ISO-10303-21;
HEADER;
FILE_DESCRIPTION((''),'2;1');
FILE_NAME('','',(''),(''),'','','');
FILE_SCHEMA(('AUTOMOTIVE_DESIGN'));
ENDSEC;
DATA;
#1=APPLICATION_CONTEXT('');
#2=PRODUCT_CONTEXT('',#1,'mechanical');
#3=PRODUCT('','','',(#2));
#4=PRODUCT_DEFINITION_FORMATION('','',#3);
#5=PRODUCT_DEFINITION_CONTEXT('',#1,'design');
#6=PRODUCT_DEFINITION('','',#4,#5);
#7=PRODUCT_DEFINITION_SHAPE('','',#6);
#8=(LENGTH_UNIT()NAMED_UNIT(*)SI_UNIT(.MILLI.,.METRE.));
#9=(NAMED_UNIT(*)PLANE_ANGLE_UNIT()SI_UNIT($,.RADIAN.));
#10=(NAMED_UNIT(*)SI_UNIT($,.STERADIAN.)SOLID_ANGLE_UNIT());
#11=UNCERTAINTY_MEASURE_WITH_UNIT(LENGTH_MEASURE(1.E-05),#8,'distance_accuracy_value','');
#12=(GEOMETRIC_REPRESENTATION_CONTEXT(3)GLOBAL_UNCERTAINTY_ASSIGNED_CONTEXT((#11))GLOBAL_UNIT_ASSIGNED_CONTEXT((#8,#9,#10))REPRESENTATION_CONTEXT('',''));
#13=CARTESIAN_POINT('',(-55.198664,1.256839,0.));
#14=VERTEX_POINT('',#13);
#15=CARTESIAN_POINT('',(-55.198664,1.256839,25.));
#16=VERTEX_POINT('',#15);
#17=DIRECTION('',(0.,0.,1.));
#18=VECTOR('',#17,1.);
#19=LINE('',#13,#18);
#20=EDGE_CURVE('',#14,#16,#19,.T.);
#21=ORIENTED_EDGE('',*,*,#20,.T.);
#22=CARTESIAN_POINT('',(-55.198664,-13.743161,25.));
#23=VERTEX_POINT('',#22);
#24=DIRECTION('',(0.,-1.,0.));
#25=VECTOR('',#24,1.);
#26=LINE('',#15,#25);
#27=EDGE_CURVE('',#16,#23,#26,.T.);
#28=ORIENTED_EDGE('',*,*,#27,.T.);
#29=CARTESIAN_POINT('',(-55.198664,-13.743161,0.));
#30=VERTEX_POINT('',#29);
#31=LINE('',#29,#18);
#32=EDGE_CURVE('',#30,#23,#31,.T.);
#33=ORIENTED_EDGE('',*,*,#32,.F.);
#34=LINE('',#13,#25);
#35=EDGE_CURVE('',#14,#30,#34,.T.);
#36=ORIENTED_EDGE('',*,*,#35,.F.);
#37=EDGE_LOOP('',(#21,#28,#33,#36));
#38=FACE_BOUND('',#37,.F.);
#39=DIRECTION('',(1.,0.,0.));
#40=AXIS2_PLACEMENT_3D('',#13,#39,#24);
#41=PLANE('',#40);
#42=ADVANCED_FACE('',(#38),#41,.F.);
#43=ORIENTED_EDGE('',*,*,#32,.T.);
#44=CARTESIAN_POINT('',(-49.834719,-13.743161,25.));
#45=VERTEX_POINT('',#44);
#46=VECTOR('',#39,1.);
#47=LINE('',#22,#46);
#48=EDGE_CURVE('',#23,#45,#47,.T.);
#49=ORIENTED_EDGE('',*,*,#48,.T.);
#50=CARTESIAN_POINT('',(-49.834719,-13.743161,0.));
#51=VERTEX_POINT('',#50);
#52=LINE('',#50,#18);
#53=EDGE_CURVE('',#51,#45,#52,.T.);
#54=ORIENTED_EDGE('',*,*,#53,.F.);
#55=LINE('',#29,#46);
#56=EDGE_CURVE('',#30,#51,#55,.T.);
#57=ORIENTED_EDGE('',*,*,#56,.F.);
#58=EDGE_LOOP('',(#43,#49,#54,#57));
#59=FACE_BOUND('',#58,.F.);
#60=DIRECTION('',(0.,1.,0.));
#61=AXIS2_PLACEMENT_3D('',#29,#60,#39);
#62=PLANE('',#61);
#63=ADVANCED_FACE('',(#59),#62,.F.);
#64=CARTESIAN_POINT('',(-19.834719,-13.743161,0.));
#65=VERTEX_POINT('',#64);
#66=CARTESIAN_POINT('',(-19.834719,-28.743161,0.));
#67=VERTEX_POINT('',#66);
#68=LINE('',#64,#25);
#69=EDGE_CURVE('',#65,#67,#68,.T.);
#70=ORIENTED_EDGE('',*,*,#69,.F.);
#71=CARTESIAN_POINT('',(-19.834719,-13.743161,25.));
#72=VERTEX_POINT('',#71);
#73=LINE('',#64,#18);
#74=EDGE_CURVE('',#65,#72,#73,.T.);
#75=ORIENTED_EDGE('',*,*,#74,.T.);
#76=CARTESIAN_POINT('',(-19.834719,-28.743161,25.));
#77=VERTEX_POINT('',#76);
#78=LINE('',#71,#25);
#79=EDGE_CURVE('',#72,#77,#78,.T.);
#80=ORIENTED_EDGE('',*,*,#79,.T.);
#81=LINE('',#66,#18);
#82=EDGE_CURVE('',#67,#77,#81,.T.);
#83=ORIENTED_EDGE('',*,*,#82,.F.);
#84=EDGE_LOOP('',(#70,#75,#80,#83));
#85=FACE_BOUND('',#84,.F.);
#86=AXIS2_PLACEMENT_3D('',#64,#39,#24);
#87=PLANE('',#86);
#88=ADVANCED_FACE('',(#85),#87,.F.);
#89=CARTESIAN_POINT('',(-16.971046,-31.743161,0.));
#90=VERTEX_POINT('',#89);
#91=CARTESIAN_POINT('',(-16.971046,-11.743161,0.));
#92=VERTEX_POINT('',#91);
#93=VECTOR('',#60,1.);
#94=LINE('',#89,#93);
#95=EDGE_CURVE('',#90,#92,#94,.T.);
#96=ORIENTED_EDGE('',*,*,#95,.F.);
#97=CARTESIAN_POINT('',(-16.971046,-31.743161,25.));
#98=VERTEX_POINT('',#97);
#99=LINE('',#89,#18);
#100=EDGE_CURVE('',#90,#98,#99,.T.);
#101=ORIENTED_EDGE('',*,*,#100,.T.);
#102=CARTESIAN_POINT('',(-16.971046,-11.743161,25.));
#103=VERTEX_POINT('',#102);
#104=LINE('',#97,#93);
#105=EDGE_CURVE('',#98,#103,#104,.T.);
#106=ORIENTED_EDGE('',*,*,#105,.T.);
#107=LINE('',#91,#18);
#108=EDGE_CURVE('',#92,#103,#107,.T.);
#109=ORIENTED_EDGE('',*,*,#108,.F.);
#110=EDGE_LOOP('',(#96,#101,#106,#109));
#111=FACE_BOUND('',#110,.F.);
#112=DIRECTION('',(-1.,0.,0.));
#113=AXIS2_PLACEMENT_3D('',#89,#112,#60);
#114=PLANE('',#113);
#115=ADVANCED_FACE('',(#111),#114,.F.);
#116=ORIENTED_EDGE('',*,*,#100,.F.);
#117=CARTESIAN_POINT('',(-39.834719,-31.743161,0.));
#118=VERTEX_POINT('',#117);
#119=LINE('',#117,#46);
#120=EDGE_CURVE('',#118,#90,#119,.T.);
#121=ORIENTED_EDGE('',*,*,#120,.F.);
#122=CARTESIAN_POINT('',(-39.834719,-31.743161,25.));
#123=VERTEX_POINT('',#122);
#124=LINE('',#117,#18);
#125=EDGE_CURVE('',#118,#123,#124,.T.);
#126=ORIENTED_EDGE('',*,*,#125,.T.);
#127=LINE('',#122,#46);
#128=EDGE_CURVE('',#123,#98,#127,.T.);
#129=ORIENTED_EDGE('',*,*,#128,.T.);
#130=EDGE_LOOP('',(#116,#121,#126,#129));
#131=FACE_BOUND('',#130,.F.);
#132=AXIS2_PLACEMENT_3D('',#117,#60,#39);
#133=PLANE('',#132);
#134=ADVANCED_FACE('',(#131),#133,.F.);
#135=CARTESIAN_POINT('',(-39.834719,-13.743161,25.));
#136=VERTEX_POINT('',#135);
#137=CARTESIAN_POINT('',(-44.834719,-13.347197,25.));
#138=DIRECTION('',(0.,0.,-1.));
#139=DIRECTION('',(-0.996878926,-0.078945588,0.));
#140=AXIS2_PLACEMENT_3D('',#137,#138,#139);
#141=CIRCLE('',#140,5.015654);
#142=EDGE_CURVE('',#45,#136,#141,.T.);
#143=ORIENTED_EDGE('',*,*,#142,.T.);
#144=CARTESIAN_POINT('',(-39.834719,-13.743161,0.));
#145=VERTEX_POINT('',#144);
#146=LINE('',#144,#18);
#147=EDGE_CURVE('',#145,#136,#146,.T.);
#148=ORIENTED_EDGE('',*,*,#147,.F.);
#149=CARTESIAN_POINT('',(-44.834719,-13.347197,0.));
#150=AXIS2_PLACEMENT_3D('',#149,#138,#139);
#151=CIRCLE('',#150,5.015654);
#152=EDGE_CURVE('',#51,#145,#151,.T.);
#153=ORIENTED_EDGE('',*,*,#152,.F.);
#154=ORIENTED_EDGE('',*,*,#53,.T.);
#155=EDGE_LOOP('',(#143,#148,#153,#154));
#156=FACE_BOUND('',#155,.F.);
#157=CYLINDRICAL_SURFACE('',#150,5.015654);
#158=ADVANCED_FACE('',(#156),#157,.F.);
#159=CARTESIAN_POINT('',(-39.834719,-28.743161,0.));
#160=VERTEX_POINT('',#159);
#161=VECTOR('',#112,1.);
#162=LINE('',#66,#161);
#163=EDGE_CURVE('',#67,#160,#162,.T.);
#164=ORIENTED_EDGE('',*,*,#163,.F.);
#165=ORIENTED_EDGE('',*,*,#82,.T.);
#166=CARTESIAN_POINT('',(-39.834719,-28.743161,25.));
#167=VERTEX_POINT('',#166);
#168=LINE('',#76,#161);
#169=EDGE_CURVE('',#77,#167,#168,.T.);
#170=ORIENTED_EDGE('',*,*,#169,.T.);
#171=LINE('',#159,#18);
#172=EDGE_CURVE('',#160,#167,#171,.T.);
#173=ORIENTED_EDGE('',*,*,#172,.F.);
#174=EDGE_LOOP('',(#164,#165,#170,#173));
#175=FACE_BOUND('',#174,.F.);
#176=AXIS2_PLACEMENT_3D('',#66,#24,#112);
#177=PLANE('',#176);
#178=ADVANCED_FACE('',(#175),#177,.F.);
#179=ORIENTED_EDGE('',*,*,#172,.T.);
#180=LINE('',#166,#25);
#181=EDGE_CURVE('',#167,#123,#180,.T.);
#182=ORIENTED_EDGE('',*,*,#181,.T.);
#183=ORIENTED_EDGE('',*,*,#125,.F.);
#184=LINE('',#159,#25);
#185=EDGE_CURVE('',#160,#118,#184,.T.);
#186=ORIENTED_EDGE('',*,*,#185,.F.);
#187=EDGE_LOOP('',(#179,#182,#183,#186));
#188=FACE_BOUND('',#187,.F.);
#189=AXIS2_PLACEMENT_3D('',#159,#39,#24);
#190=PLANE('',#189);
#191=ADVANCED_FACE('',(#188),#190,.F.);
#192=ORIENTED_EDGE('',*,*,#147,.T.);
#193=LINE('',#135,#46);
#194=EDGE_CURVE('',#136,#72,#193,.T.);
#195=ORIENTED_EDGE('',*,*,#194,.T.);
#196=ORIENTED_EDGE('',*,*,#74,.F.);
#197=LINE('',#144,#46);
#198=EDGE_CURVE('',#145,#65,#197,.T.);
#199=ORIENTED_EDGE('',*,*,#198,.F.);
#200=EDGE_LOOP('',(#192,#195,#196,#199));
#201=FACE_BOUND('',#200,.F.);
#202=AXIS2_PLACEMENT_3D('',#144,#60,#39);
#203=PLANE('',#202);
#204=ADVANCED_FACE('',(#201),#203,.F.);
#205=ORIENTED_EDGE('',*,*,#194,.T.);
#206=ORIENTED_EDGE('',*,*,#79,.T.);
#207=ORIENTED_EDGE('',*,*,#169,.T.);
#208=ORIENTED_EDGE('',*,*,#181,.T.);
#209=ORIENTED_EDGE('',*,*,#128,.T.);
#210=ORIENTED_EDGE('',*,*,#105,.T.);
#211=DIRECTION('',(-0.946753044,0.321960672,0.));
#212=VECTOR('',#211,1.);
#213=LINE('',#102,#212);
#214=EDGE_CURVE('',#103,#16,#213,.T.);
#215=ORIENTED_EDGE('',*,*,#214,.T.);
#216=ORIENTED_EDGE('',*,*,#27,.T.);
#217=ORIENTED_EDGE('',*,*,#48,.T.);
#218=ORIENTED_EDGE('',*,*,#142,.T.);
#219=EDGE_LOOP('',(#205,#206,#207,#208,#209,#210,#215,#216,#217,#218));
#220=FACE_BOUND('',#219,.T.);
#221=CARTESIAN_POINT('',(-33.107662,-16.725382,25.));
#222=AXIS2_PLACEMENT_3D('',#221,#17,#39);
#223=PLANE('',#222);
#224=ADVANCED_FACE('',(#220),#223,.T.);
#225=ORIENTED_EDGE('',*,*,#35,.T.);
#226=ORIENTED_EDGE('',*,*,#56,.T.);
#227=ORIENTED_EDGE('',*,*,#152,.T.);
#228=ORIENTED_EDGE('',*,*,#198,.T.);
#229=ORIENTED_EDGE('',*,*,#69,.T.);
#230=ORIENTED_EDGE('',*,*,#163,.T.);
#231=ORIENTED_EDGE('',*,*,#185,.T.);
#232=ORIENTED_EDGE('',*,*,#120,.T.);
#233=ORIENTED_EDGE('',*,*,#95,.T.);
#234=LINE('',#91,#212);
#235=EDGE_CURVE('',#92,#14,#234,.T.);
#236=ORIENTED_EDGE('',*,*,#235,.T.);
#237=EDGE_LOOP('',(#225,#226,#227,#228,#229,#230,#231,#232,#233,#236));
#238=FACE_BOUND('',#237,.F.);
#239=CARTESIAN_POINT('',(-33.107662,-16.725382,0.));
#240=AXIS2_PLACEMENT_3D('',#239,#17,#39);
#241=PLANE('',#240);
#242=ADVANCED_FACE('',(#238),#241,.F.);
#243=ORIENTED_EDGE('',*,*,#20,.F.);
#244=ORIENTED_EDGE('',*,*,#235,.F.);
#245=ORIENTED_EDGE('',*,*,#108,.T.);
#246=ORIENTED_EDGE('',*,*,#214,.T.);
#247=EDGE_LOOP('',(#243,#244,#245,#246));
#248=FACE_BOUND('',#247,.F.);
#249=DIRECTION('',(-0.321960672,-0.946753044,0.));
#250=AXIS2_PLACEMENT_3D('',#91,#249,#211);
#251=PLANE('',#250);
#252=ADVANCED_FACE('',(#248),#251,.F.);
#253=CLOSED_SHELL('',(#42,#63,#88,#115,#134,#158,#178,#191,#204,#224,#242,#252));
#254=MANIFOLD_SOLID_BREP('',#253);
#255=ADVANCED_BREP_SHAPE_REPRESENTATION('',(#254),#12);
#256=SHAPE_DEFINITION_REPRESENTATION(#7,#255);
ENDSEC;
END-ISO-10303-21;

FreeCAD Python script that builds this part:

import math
import FreeCAD as App
import Part
import Sketcher

doc = App.newDocument("Part")
body = doc.addObject("PartDesign::Body", "Body")

# Sketch on XY plane
sketch1 = body.newObject("Sketcher::SketchObject", "Sketch")
sketch1.AttachmentSupport = (doc.getObject("XY_Plane"), [""])
sketch1.MapMode = "FlatFace"
sketch1.addGeometry([
    Part.ArcOfCircle(Part.Circle(App.Vector(-44.8, -13.3, 0), App.Vector(0, 0, 1), 5), math.radians(-5), math.radians(185)),  # 0
    Part.LineSegment(App.Vector(-39.8, -13.7, 0), App.Vector(-19.8, -13.7, 0)),  # 1
    Part.LineSegment(App.Vector(-19.8, -13.7, 0), App.Vector(-19.8, -28.7, 0)),  # 2
    Part.LineSegment(App.Vector(-19.8, -28.7, 0), App.Vector(-39.8, -28.7, 0)),  # 3
    Part.LineSegment(App.Vector(-39.8, -28.7, 0), App.Vector(-39.8, -31.7, 0)),  # 4
    Part.LineSegment(App.Vector(-39.8, -31.7, 0), App.Vector(-17, -31.7, 0)),  # 5
    Part.LineSegment(App.Vector(-17, -31.7, 0), App.Vector(-17, -11.7, 0)),  # 6
    Part.LineSegment(App.Vector(-17, -11.7, 0), App.Vector(-55.2, 1.3, 0)),  # 7
    Part.LineSegment(App.Vector(-55.2, 1.3, 0), App.Vector(-55.2, -13.7, 0)),  # 8
    Part.LineSegment(App.Vector(-55.2, -13.7, 0), App.Vector(-49.8, -13.7, 0)),  # 9
], False)
sketch1.addConstraint([
    Sketcher.Constraint("Coincident", 0, 1, 1, 1),
    Sketcher.Constraint("Coincident", 1, 2, 2, 1),
    Sketcher.Constraint("Coincident", 2, 2, 3, 1),
    Sketcher.Constraint("Coincident", 3, 2, 4, 1),
    Sketcher.Constraint("Coincident", 4, 2, 5, 1),
    Sketcher.Constraint("Coincident", 5, 2, 6, 1),
    Sketcher.Constraint("Coincident", 6, 2, 7, 1),
    Sketcher.Constraint("Coincident", 7, 2, 8, 1),
    Sketcher.Constraint("Coincident", 8, 2, 9, 1),
    Sketcher.Constraint("Coincident", 9, 2, 0, 2),
    Sketcher.Constraint("Horizontal", 1),
    Sketcher.Constraint("Vertical", 2),
    Sketcher.Constraint("Horizontal", 3),
    Sketcher.Constraint("Vertical", 4),
    Sketcher.Constraint("Horizontal", 5),
    Sketcher.Constraint("Vertical", 6),
    Sketcher.Constraint("Vertical", 8),
    Sketcher.Constraint("Horizontal", 9),
    Sketcher.Constraint("Horizontal", 1, 2, 8, 2),
    Sketcher.Constraint("Vertical", 0, 1, 3, 2),
    Sketcher.Constraint("Equal", 3, 6),
    Sketcher.Constraint("Equal", 2, 8),
    Sketcher.Constraint("DistanceX", 1, 1, 1, 2, 20.0),
    Sketcher.Constraint("DistanceY", 2, 2, 2, 1, 15.0),
    Sketcher.Constraint("DistanceY", 4, 2, 4, 1, 3.0),
    Sketcher.Constraint("DistanceX", 0, 3, 0, 1, 5.0),
    Sketcher.Constraint("Radius", 0, 5.015654),
    Sketcher.Constraint("DistanceX", 5, 1, 5, 2, 22.863673),
    Sketcher.Constraint("DistanceX", 9, 1, 9, 2, 5.363945),
    Sketcher.Constraint("DistanceX", 0, 3, -1, 1, 44.834719),
    Sketcher.Constraint("DistanceY", 0, 1, -1, 1, 13.743161),
])
pad1 = body.newObject("PartDesign::Pad", "Pad")
pad1.Profile = sketch1
pad1.Length = 25

doc.recompute()
